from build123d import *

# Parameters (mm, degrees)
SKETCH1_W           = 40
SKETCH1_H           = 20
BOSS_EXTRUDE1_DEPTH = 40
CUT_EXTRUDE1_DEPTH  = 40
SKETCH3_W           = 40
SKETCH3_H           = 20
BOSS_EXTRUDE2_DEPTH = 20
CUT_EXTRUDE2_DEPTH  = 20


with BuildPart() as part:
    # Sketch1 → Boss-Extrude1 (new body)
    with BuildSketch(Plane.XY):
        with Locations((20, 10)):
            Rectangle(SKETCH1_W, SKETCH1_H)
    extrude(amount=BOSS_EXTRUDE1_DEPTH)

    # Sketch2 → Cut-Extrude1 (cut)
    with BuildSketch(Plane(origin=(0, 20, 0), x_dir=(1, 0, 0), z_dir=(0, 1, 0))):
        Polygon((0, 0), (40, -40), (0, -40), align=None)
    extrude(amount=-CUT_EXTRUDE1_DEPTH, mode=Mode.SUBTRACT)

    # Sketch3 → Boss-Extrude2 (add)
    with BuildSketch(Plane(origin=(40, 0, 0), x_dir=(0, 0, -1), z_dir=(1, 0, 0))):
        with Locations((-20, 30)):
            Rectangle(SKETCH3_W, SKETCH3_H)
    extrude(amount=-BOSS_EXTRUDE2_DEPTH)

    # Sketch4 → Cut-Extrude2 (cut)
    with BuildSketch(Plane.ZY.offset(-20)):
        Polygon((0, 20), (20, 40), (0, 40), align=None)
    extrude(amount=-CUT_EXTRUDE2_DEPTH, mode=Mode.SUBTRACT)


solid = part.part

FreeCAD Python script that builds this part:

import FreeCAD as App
import Part
import Sketcher

V = App.Vector

doc = App.newDocument("Part")
body = doc.addObject("PartDesign::Body", "Body")

# Sketch on XY plane
sketch1 = doc.addObject("Sketcher::SketchObject", "Sketch")
body.addObject(sketch1)
sketch1.AttachmentSupport = (doc.XY_Plane, [""])
sketch1.MapMode = "FlatFace"
sketch1.addGeometry(Part.LineSegment(V(0, 20, 0), V(0, 0, 0)), False)
sketch1.addGeometry(Part.LineSegment(V(0, 0, 0), V(40, 0, 0)), False)
sketch1.addGeometry(Part.LineSegment(V(40, 0, 0), V(40, 20, 0)), False)
sketch1.addGeometry(Part.LineSegment(V(40, 20, 0), V(0, 20, 0)), False)
sketch1.addConstraint(Sketcher.Constraint("Coincident", 0, 2, 1, 1))
sketch1.addConstraint(Sketcher.Constraint("Coincident", 1, 2, 2, 1))
sketch1.addConstraint(Sketcher.Constraint("Coincident", 2, 2, 3, 1))
sketch1.addConstraint(Sketcher.Constraint("Coincident", 3, 2, 0, 1))
sketch1.addConstraint(Sketcher.Constraint("Vertical", 0))
sketch1.addConstraint(Sketcher.Constraint("Horizontal", 1))
sketch1.addConstraint(Sketcher.Constraint("Vertical", 2))
sketch1.addConstraint(Sketcher.Constraint("Horizontal", 3))
sketch1.addConstraint(Sketcher.Constraint("Coincident", 0, 2, -1, 1))
sketch1.addConstraint(Sketcher.Constraint("DistanceX", 1, 1, 1, 2, 40.0))
sketch1.addConstraint(Sketcher.Constraint("DistanceY", 0, 2, 0, 1, 20.0))
pad1 = doc.addObject("PartDesign::Pad", "Pad")
body.addObject(pad1)
pad1.Profile = sketch1
pad1.Length = 40

# Sketch on XZ plane
sketch2 = doc.addObject("Sketcher::SketchObject", "Sketch001")
body.addObject(sketch2)
sketch2.AttachmentSupport = (doc.XZ_Plane, [""])
sketch2.MapMode = "FlatFace"
sketch2.AttachmentOffset = App.Placement(V(0, 0, -20), App.Rotation())
sketch2.addGeometry(Part.LineSegment(V(40, 40, 0), V(0, 0, 0)), False)
sketch2.addGeometry(Part.LineSegment(V(0, 0, 0), V(0, 40, 0)), False)
sketch2.addGeometry(Part.LineSegment(V(0, 40, 0), V(40, 40, 0)), False)
sketch2.addConstraint(Sketcher.Constraint("Coincident", 0, 2, 1, 1))
sketch2.addConstraint(Sketcher.Constraint("Coincident", 1, 2, 2, 1))
sketch2.addConstraint(Sketcher.Constraint("Coincident", 2, 2, 0, 1))
sketch2.addConstraint(Sketcher.Constraint("Vertical", 1))
sketch2.addConstraint(Sketcher.Constraint("Horizontal", 2))
sketch2.addConstraint(Sketcher.Constraint("Coincident", 0, 2, -1, 1))
sketch2.addConstraint(Sketcher.Constraint("Equal", 2, 1))
sketch2.addConstraint(Sketcher.Constraint("DistanceX", 2, 1, 2, 2, 40.0))
pocket1 = doc.addObject("PartDesign::Pocket", "Pocket")
body.addObject(pocket1)
pocket1.Profile = sketch2
pocket1.Length = 40
pocket1.Reversed = True

# Sketch on YZ plane
sketch3 = doc.addObject("Sketcher::SketchObject", "Sketch002")
body.addObject(sketch3)
sketch3.AttachmentSupport = (doc.YZ_Plane, [""])
sketch3.MapMode = "FlatFace"
sketch3.AttachmentOffset = App.Placement(V(0, 0, 40), App.Rotation())
sketch3.addGeometry(Part.LineSegment(V(40, 40, 0), V(20, 40, 0)), False)
sketch3.addGeometry(Part.LineSegment(V(20, 40, 0), V(20, 0, 0)), False)
sketch3.addGeometry(Part.LineSegment(V(20, 0, 0), V(40, 0, 0)), False)
sketch3.addGeometry(Part.LineSegment(V(40, 0, 0), V(40, 40, 0)), False)
sketch3.addConstraint(Sketcher.Constraint("Coincident", 0, 2, 1, 1))
sketch3.addConstraint(Sketcher.Constraint("Coincident", 1, 2, 2, 1))
sketch3.addConstraint(Sketcher.Constraint("Coincident", 2, 2, 3, 1))
sketch3.addConstraint(Sketcher.Constraint("Coincident", 3, 2, 0, 1))
sketch3.addConstraint(Sketcher.Constraint("Horizontal", 0))
sketch3.addConstraint(Sketcher.Constraint("Vertical", 1))
sketch3.addConstraint(Sketcher.Constraint("Horizontal", 2))
sketch3.addConstraint(Sketcher.Constraint("Vertical", 3))
sketch3.addConstraint(Sketcher.Constraint("PointOnObject", 1, 2, -1))
sketch3.addConstraint(Sketcher.Constraint("DistanceX", 0, 2, 0, 1, 20.0))
sketch3.addConstraint(Sketcher.Constraint("DistanceY", 1, 2, 1, 1, 40.0))
sketch3.addConstraint(Sketcher.Constraint("DistanceX", -1, 1, 0, 2, 20.0))
pad2 = doc.addObject("PartDesign::Pad", "Pad001")
body.addObject(pad2)
pad2.Profile = sketch3
pad2.Length = 20
pad2.Reversed = True

# Sketch on YZ plane
sketch4 = doc.addObject("Sketcher::SketchObject", "Sketch003")
body.addObject(sketch4)
sketch4.AttachmentSupport = (doc.YZ_Plane, [""])
sketch4.MapMode = "FlatFace"
sketch4.AttachmentOffset = App.Placement(V(0, 0, 20), App.Rotation())
sketch4.addGeometry(Part.LineSegment(V(20, 0, 0), V(40, 20, 0)), False)
sketch4.addGeometry(Part.LineSegment(V(40, 20, 0), V(40, 0, 0)), False)
sketch4.addGeometry(Part.LineSegment(V(40, 0, 0), V(20, 0, 0)), False)
sketch4.addConstraint(Sketcher.Constraint("Coincident", 0, 2, 1, 1))
sketch4.addConstraint(Sketcher.Constraint("Coincident", 1, 2, 2, 1))
sketch4.addConstraint(Sketcher.Constraint("Coincident", 2, 2, 0, 1))
sketch4.addConstraint(Sketcher.Constraint("Vertical", 1))
sketch4.addConstraint(Sketcher.Constraint("Horizontal", 2))
sketch4.addConstraint(Sketcher.Constraint("PointOnObject", 1, 2, -1))
sketch4.addConstraint(Sketcher.Constraint("Equal", 2, 1))
sketch4.addConstraint(Sketcher.Constraint("DistanceX", 2, 2, 2, 1, 20.0))
sketch4.addConstraint(Sketcher.Constraint("DistanceX", -1, 1, 0, 2, 40.0))
pocket2 = doc.addObject("PartDesign::Pocket", "Pocket001")
body.addObject(pocket2)
pocket2.Profile = sketch4
pocket2.Length = 20
pocket2.Reversed = True

doc.recompute()
